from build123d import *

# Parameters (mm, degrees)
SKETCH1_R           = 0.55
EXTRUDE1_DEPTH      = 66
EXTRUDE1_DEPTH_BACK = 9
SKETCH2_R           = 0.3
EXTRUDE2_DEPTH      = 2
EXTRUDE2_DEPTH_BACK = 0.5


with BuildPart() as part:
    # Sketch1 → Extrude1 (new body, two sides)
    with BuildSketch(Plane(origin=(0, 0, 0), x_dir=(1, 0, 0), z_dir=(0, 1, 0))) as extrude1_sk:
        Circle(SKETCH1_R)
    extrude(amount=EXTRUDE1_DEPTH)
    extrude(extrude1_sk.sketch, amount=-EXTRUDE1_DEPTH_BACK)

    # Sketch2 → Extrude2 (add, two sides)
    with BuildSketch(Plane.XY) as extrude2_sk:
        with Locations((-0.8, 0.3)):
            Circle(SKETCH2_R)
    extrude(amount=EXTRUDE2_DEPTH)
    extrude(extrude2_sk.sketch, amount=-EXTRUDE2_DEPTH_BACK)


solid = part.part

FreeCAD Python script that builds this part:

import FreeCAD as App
import Part
import Sketcher

doc = App.newDocument("Part")
body = doc.addObject("PartDesign::Body", "Body")

sketch1 = doc.addObject("Sketcher::SketchObject", "Sketch")
body.addObject(sketch1)
sketch1.AttachmentSupport = (doc.XZ_Plane, [""])
sketch1.MapMode = "FlatFace"
sketch1.addGeometry(Part.Circle(App.Vector(0, 0, 0), App.Vector(0, 0, 1), 0.55), False)
sketch1.addConstraint(Sketcher.Constraint("Coincident", 0, 3, -1, 1))
sketch1.addConstraint(Sketcher.Constraint("Diameter", 0, 1.1))
pad1 = doc.addObject("PartDesign::Pad", "Pad")
body.addObject(pad1)
pad1.Profile = sketch1
pad1.Type = "TwoLengths"
pad1.Length = 66
pad1.Length2 = 9
pad1.Reversed = True

sketch2 = doc.addObject("Sketcher::SketchObject", "Sketch001")
body.addObject(sketch2)
sketch2.AttachmentSupport = (doc.XY_Plane, [""])
sketch2.MapMode = "FlatFace"
sketch2.addGeometry(Part.Circle(App.Vector(-0.8, 0.3, 0), App.Vector(0, 0, 1), 0.3), False)
sketch2.addConstraint(Sketcher.Constraint("Diameter", 0, 0.6))
sketch2.addConstraint(Sketcher.Constraint("DistanceX", 0, 3, -1, 1, 0.8))
sketch2.addConstraint(Sketcher.Constraint("DistanceY", -1, 1, 0, 3, 0.3))
pad2 = doc.addObject("PartDesign::Pad", "Pad001")
body.addObject(pad2)
pad2.Profile = sketch2
pad2.Type = "TwoLengths"
pad2.Length = 2
pad2.Length2 = 0.5

doc.recompute()
